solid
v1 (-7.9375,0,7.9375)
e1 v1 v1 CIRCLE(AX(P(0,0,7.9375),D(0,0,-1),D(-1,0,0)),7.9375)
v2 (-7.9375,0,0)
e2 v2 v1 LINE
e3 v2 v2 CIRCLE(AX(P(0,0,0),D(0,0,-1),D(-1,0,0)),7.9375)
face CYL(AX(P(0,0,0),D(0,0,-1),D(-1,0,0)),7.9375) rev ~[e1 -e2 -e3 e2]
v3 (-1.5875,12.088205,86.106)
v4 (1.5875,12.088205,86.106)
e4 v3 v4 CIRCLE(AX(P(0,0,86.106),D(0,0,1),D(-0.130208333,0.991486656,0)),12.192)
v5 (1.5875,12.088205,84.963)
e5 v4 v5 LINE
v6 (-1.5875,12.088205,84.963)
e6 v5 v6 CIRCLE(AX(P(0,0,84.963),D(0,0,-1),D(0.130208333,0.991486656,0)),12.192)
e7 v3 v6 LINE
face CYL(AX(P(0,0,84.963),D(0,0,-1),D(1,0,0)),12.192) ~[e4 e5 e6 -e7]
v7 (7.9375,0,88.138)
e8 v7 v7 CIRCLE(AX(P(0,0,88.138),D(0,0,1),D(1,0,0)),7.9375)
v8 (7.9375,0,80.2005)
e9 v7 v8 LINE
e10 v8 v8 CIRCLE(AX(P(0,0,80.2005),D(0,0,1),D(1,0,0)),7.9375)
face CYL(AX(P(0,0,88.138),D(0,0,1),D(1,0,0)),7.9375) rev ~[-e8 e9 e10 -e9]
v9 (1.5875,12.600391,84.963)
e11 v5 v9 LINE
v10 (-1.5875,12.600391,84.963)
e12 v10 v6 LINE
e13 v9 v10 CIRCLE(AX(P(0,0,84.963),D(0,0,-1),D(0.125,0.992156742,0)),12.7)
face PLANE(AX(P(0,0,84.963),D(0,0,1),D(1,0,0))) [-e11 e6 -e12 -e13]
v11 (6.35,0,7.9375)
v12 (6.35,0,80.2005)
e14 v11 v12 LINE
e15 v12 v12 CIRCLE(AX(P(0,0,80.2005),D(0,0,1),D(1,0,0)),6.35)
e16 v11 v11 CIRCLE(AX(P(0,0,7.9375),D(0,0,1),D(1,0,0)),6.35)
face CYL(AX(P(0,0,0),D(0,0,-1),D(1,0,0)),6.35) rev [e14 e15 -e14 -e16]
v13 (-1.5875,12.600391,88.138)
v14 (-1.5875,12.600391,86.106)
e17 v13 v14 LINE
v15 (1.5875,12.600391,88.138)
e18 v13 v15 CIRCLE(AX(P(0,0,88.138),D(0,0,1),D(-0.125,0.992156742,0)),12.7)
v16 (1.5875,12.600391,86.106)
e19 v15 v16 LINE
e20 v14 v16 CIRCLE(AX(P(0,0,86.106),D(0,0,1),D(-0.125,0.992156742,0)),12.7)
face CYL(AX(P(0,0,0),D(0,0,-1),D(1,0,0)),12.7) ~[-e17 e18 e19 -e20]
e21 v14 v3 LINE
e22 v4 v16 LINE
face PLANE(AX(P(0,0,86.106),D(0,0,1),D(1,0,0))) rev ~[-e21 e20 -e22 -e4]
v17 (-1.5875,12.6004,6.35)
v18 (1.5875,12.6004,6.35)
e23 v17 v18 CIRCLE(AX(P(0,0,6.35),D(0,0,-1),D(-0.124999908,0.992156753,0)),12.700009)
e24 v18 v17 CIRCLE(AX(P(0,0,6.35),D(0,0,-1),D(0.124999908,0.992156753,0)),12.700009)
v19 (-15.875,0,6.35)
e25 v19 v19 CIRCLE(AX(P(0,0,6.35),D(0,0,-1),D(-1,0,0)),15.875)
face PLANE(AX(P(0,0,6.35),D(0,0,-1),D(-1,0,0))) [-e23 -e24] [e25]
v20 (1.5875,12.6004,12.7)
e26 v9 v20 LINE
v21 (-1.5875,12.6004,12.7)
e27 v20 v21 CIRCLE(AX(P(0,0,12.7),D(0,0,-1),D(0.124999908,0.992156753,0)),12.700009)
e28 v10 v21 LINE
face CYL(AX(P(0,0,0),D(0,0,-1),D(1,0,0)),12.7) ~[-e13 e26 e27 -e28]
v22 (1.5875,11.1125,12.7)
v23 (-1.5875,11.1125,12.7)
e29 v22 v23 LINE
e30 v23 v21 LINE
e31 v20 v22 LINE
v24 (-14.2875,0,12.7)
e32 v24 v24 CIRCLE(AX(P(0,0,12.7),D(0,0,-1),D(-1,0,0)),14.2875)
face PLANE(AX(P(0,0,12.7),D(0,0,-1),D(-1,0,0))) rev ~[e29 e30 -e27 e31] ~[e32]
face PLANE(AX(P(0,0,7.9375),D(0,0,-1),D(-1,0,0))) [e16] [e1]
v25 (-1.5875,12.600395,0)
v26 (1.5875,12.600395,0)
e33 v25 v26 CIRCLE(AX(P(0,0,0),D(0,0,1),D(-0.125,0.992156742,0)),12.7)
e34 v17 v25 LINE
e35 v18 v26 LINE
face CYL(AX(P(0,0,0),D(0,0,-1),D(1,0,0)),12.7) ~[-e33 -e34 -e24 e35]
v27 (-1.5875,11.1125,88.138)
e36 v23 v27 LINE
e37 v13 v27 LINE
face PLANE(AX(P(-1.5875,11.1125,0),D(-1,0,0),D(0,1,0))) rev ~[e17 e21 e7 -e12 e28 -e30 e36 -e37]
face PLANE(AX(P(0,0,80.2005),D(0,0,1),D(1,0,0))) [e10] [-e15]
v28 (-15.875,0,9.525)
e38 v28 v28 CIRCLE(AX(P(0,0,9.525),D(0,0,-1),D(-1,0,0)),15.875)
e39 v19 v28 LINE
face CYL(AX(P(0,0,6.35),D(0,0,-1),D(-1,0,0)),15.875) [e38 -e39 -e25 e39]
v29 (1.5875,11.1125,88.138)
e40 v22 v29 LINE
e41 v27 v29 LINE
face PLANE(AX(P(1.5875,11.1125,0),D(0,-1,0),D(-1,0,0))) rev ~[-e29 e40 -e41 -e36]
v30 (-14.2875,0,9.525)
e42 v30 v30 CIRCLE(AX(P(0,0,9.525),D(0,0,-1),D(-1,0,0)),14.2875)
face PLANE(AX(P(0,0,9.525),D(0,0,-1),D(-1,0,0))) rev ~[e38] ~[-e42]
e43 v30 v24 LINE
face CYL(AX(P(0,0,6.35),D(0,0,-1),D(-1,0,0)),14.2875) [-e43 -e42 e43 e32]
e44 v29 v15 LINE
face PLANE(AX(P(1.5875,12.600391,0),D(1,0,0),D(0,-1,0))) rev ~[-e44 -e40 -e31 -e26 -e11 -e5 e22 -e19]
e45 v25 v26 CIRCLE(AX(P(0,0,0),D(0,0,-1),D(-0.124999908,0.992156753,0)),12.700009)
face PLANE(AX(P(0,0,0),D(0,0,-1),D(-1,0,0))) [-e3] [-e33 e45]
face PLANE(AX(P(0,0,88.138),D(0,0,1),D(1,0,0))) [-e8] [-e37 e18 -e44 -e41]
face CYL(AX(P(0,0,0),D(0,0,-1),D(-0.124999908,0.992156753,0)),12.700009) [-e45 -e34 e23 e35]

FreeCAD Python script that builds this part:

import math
import FreeCAD as App
import Part
import Sketcher

V = App.Vector
Q = App.Units.Quantity


def add_polygon(sketch, points):
    """Adds a closed chain of lines whose ends are joined by coincident constraints."""
    first, n = sketch.GeometryCount, len(points)
    for a, b in zip(points, points[1:] + points[:1]):
        sketch.addGeometry(Part.LineSegment(App.Vector(*a, 0), App.Vector(*b, 0)), False)
    for i in range(n):
        sketch.addConstraint(Sketcher.Constraint("Coincident", first + i, 2, first + (i + 1) % n, 1))

doc = App.newDocument("Part")
params = doc.addObject("Spreadsheet::Sheet", "Params")
for row, (alias, value) in enumerate([
    ("sketch1_diameter", "1 in"),
    ("sketch1_diameter2", "0.5 in"),
    ("pad1_length", "3.47 in"),
    ("sketch2_diameter", "0.96 in"),
    ("sketch2_diameter2", "1 in"),
    ("pocket1_length", "0.045 in"),
    ("sketch3_width", "0.125 in"),
    ("sketch4_diameter", "0.625 in"),
    ("sketch4_diameter2", "0.5 in"),
    ("pocket3_length", "0.3125 in"),
    ("sketch5_diameter", "0.625 in"),
    ("sketch5_diameter2", "0.5 in"),
    ("pocket4_length", "0.3125 in"),
    ("sketch6_diameter", "1.25 in"),
    ("sketch6_radius", "0.5 in"),
    ("sketch6_width", "0.125 in"),
    ("pad2_length", "0.125 in"),
    ("sketch7_radius", "0.5 in"),
    ("sketch7_width", "0.125 in"),
    ("pad3_length", "0.25 in"),
    ("sketch8_diameter", "1.125 in"),
    ("sketch8_radius", "0.5 in"),
    ("sketch8_width", "0.125 in"),
    ("pad4_length", "0.25 in"),
], start=1):
    params.set(f"A{row}", alias)
    params.set(f"B{row}", "=" + value)
    params.setAlias(f"B{row}", alias)

body = doc.addObject("PartDesign::Body", "Body")

# Sketch on XY plane
sketch1 = body.newObject("Sketcher::SketchObject", "Sketch")
sketch1.AttachmentSupport = (doc.getObject("XY_Plane"), [""])
sketch1.MapMode = "FlatFace"
sketch1.addGeometry([
    Part.Circle(V(0, 0, 0), V(0, 0, 1), 13),
    Part.Circle(V(0, 0, 0), V(0, 0, 1), 6),
], False)
sketch1.addConstraint([
    Sketcher.Constraint("Coincident", 0, 3, -1, 1),
    Sketcher.Constraint("Coincident", 1, 3, -1, 1),
    Sketcher.Constraint("Diameter", 0, Q("1 in")),
    Sketcher.Constraint("Diameter", 1, Q("0.5 in")),
])
sketch1.setExpression("Constraints[2]", "Params.sketch1_diameter")
sketch1.setExpression("Constraints[3]", "Params.sketch1_diameter2")
pad1 = body.newObject("PartDesign::Pad", "Pad")
pad1.Profile = sketch1
pad1.setExpression("Length", "Params.pad1_length")

# Sketch on XY plane
sketch2 = body.newObject("Sketcher::SketchObject", "Sketch001")
sketch2.AttachmentSupport = (doc.getObject("XY_Plane"), [""])
sketch2.MapMode = "FlatFace"
sketch2.AttachmentOffset = App.Placement(V(0, 0, 3.345 * 25.4), App.Rotation())
sketch2.addGeometry([
    Part.Circle(V(0, 0, 0), V(0, 0, 1), 13),
    Part.Circle(V(0, 0, 0), V(0, 0, 1), 12),
], False)
sketch2.addConstraint([
    Sketcher.Constraint("Coincident", 0, 3, -1, 1),
    Sketcher.Constraint("Coincident", 1, 3, -1, 1),
    Sketcher.Constraint("Diameter", 1, Q("0.96 in")),
    Sketcher.Constraint("Diameter", 0, Q("1 in")),
])
sketch2.setExpression("Constraints[2]", "Params.sketch2_diameter")
sketch2.setExpression("Constraints[3]", "Params.sketch2_diameter2")
pocket1 = body.newObject("PartDesign::Pocket", "Pocket")
pocket1.Profile = sketch2
pocket1.setExpression("Length", "Params.pocket1_length")
pocket1.Reversed = True

# Sketch on XY plane
sketch3 = body.newObject("Sketcher::SketchObject", "Sketch002")
sketch3.AttachmentSupport = (doc.getObject("XY_Plane"), [""])
sketch3.MapMode = "FlatFace"
add_polygon(sketch3, [(1.6, 11.1), (1.6, 14.3), (-1.6, 14.3), (-1.6, 11.1)])  # lines 0-3
sketch3.addConstraint([
    Sketcher.Constraint("Vertical", 0),
    Sketcher.Constraint("Horizontal", 1),
    Sketcher.Constraint("Vertical", 2),
    Sketcher.Constraint("Horizontal", 3),
    Sketcher.Constraint("Equal", 3, 0),
    Sketcher.Constraint("DistanceX", 1, 2, 1, 1, Q("0.125 in")),
    Sketcher.Constraint("DistanceX", -1, 1, 0, 2, Q("0.0625 in")),
    Sketcher.Constraint("DistanceY", -1, 1, 0, 2, Q("0.5625 in")),
])
sketch3.setExpression("Constraints[9]", "Params.sketch3_width")
pocket2 = body.newObject("PartDesign::Pocket", "Pocket001")
pocket2.Profile = sketch3
pocket2.Type = "ThroughAll"
pocket2.Reversed = True

# Sketch on XY plane
sketch4 = body.newObject("Sketcher::SketchObject", "Sketch003")
sketch4.AttachmentSupport = (doc.getObject("XY_Plane"), [""])
sketch4.MapMode = "FlatFace"
sketch4.AttachmentOffset = App.Placement(V(0, 0, 3.47 * 25.4), App.Rotation())
sketch4.addGeometry([
    Part.Circle(V(0, 0, 0), V(0, 0, 1), 8),
    Part.Circle(V(0, 0, 0), V(0, 0, 1), 6),
], False)
sketch4.addConstraint([
    Sketcher.Constraint("Coincident", 0, 3, -1, 1),
    Sketcher.Constraint("Coincident", 1, 3, -1, 1),
    Sketcher.Constraint("Diameter", 0, Q("0.625 in")),
    Sketcher.Constraint("Diameter", 1, Q("0.5 in")),
])
sketch4.setExpression("Constraints[2]", "Params.sketch4_diameter")
sketch4.setExpression("Constraints[3]", "Params.sketch4_diameter2")
pocket3 = body.newObject("PartDesign::Pocket", "Pocket002")
pocket3.Profile = sketch4
pocket3.setExpression("Length", "Params.pocket3_length")

# Sketch on XY plane
sketch5 = body.newObject("Sketcher::SketchObject", "Sketch004")
sketch5.AttachmentSupport = (doc.getObject("XY_Plane"), [""])
sketch5.MapMode = "FlatFace"
sketch5.addGeometry([
    Part.Circle(V(0, 0, 0), V(0, 0, 1), 8),
    Part.Circle(V(0, 0, 0), V(0, 0, 1), 6),
], False)
sketch5.addConstraint([
    Sketcher.Constraint("Coincident", 0, 3, -1, 1),
    Sketcher.Constraint("Coincident", 1, 3, -1, 1),
    Sketcher.Constraint("Diameter", 0, Q("0.625 in")),
    Sketcher.Constraint("Diameter", 1, Q("0.5 in")),
])
sketch5.setExpression("Constraints[2]", "Params.sketch5_diameter")
sketch5.setExpression("Constraints[3]", "Params.sketch5_diameter2")
pocket4 = body.newObject("PartDesign::Pocket", "Pocket003")
pocket4.Profile = sketch5
pocket4.setExpression("Length", "Params.pocket4_length")
pocket4.Reversed = True

# Sketch on XY plane
sketch6 = body.newObject("Sketcher::SketchObject", "Sketch005")
sketch6.AttachmentSupport = (doc.getObject("XY_Plane"), [""])
sketch6.MapMode = "FlatFace"
sketch6.AttachmentOffset = App.Placement(V(0, 0, 0.25 * 25.4), App.Rotation())
sketch6.addGeometry([
    Part.Circle(V(0, 0, 0), V(0, 0, 1), 15.9),  # 0
    Part.LineSegment(V(1.6, 12.6, 0), V(1.6, 11.1, 0)),  # 1
    Part.LineSegment(V(1.6, 11.1, 0), V(-1.6, 11.1, 0)),  # 2
    Part.LineSegment(V(-1.6, 11.1, 0), V(-1.6, 12.6, 0)),  # 3
    Part.ArcOfCircle(Part.Circle(V(0, 0, 0), V(0, 0, 1), 12.7), math.radians(97), math.radians(443)),  # 4
], False)
sketch6.addConstraint([
    Sketcher.Constraint("Coincident", 1, 2, 2, 1),
    Sketcher.Constraint("Coincident", 2, 2, 3, 1),
    Sketcher.Constraint("Coincident", 3, 2, 4, 1),
    Sketcher.Constraint("Coincident", 4, 2, 1, 1),
    Sketcher.Constraint("Vertical", 1),
    Sketcher.Constraint("Horizontal", 2),
    Sketcher.Constraint("Vertical", 3),
    Sketcher.Constraint("Coincident", 0, 3, -1, 1),
    Sketcher.Constraint("Coincident", 4, 3, -1, 1),
    Sketcher.Constraint("Horizontal", 3, 2, 4, 2),
    Sketcher.Constraint("Diameter", 0, Q("1.25 in")),
    Sketcher.Constraint("Radius", 4, Q("0.5 in")),
    Sketcher.Constraint("DistanceX", 2, 2, 2, 1, Q("0.125 in")),
    Sketcher.Constraint("DistanceY", -1, 1, 1, 2, Q("0.4375 in")),
])
sketch6.setExpression("Constraints[10]", "Params.sketch6_diameter")
sketch6.setExpression("Constraints[11]", "Params.sketch6_radius")
sketch6.setExpression("Constraints[12]", "Params.sketch6_width")
pad2 = body.newObject("PartDesign::Pad", "Pad001")
pad2.Profile = sketch6
pad2.setExpression("Length", "Params.pad2_length")

# Sketch on XY plane
sketch7 = body.newObject("Sketcher::SketchObject", "Sketch006")
sketch7.AttachmentSupport = (doc.getObject("XY_Plane"), [""])
sketch7.MapMode = "FlatFace"
sketch7.addGeometry([
    Part.LineSegment(V(1.6, 12.6, 0), V(1.6, 11.1, 0)),
    Part.LineSegment(V(1.6, 11.1, 0), V(-1.6, 11.1, 0)),
    Part.LineSegment(V(-1.6, 11.1, 0), V(-1.6, 12.6, 0)),
    Part.ArcOfCircle(Part.Circle(V(0, 0, 0), V(0, 0, 1), 12.7), math.radians(82.82), math.radians(97.18)),
], False)
sketch7.addConstraint([
    Sketcher.Constraint("Coincident", 0, 2, 1, 1),
    Sketcher.Constraint("Coincident", 1, 2, 2, 1),
    Sketcher.Constraint("Coincident", 2, 2, 3, 2),
    Sketcher.Constraint("Coincident", 3, 1, 0, 1),
    Sketcher.Constraint("Vertical", 0),
    Sketcher.Constraint("Horizontal", 1),
    Sketcher.Constraint("Vertical", 2),
    Sketcher.Constraint("Coincident", 3, 3, -1, 1),
    Sketcher.Constraint("Horizontal", 2, 2, 3, 1),
    Sketcher.Constraint("Radius", 3, Q("0.5 in")),
    Sketcher.Constraint("DistanceX", 1, 2, 1, 1, Q("0.125 in")),
    Sketcher.Constraint("DistanceY", -1, 1, 0, 2, Q("0.4375 in")),
])
sketch7.setExpression("Constraints[9]", "Params.sketch7_radius")
sketch7.setExpression("Constraints[10]", "Params.sketch7_width")
pad3 = body.newObject("PartDesign::Pad", "Pad002")
pad3.Profile = sketch7
pad3.setExpression("Length", "Params.pad3_length")

# Sketch on XY plane
sketch8 = body.newObject("Sketcher::SketchObject", "Sketch007")
sketch8.AttachmentSupport = (doc.getObject("XY_Plane"), [""])
sketch8.MapMode = "FlatFace"
sketch8.AttachmentOffset = App.Placement(V(0, 0, 0.25 * 25.4), App.Rotation())
sketch8.addGeometry([
    Part.Circle(V(0, 0, 0), V(0, 0, 1), 14.3),  # 0
    Part.ArcOfCircle(Part.Circle(V(0, 0, 0), V(0, 0, 1), 12.7), math.radians(97), math.radians(443)),  # 1
    Part.LineSegment(V(1.6, 12.6, 0), V(1.6, 11.1, 0)),  # 2
    Part.LineSegment(V(1.6, 11.1, 0), V(-1.6, 11.1, 0)),  # 3
    Part.LineSegment(V(-1.6, 11.1, 0), V(-1.6, 12.6, 0)),  # 4
], False)
sketch8.addConstraint([
    Sketcher.Constraint("Coincident", 1, 2, 2, 1),
    Sketcher.Constraint("Coincident", 2, 2, 3, 1),
    Sketcher.Constraint("Coincident", 3, 2, 4, 1),
    Sketcher.Constraint("Coincident", 4, 2, 1, 1),
    Sketcher.Constraint("Vertical", 2),
    Sketcher.Constraint("Horizontal", 3),
    Sketcher.Constraint("Vertical", 4),
    Sketcher.Constraint("Coincident", 0, 3, -1, 1),
    Sketcher.Constraint("Coincident", 1, 3, -1, 1),
    Sketcher.Constraint("Horizontal", 1, 2, 4, 2),
    Sketcher.Constraint("Diameter", 0, Q("1.125 in")),
    Sketcher.Constraint("Radius", 1, Q("0.5 in")),
    Sketcher.Constraint("DistanceX", 3, 2, 3, 1, Q("0.125 in")),
    Sketcher.Constraint("DistanceY", -1, 1, 2, 2, Q("0.4375 in")),
])
sketch8.setExpression("Constraints[10]", "Params.sketch8_diameter")
sketch8.setExpression("Constraints[11]", "Params.sketch8_radius")
sketch8.setExpression("Constraints[12]", "Params.sketch8_width")
pad4 = body.newObject("PartDesign::Pad", "Pad003")
pad4.Profile = sketch8
pad4.setExpression("Length", "Params.pad4_length")

doc.recompute()
